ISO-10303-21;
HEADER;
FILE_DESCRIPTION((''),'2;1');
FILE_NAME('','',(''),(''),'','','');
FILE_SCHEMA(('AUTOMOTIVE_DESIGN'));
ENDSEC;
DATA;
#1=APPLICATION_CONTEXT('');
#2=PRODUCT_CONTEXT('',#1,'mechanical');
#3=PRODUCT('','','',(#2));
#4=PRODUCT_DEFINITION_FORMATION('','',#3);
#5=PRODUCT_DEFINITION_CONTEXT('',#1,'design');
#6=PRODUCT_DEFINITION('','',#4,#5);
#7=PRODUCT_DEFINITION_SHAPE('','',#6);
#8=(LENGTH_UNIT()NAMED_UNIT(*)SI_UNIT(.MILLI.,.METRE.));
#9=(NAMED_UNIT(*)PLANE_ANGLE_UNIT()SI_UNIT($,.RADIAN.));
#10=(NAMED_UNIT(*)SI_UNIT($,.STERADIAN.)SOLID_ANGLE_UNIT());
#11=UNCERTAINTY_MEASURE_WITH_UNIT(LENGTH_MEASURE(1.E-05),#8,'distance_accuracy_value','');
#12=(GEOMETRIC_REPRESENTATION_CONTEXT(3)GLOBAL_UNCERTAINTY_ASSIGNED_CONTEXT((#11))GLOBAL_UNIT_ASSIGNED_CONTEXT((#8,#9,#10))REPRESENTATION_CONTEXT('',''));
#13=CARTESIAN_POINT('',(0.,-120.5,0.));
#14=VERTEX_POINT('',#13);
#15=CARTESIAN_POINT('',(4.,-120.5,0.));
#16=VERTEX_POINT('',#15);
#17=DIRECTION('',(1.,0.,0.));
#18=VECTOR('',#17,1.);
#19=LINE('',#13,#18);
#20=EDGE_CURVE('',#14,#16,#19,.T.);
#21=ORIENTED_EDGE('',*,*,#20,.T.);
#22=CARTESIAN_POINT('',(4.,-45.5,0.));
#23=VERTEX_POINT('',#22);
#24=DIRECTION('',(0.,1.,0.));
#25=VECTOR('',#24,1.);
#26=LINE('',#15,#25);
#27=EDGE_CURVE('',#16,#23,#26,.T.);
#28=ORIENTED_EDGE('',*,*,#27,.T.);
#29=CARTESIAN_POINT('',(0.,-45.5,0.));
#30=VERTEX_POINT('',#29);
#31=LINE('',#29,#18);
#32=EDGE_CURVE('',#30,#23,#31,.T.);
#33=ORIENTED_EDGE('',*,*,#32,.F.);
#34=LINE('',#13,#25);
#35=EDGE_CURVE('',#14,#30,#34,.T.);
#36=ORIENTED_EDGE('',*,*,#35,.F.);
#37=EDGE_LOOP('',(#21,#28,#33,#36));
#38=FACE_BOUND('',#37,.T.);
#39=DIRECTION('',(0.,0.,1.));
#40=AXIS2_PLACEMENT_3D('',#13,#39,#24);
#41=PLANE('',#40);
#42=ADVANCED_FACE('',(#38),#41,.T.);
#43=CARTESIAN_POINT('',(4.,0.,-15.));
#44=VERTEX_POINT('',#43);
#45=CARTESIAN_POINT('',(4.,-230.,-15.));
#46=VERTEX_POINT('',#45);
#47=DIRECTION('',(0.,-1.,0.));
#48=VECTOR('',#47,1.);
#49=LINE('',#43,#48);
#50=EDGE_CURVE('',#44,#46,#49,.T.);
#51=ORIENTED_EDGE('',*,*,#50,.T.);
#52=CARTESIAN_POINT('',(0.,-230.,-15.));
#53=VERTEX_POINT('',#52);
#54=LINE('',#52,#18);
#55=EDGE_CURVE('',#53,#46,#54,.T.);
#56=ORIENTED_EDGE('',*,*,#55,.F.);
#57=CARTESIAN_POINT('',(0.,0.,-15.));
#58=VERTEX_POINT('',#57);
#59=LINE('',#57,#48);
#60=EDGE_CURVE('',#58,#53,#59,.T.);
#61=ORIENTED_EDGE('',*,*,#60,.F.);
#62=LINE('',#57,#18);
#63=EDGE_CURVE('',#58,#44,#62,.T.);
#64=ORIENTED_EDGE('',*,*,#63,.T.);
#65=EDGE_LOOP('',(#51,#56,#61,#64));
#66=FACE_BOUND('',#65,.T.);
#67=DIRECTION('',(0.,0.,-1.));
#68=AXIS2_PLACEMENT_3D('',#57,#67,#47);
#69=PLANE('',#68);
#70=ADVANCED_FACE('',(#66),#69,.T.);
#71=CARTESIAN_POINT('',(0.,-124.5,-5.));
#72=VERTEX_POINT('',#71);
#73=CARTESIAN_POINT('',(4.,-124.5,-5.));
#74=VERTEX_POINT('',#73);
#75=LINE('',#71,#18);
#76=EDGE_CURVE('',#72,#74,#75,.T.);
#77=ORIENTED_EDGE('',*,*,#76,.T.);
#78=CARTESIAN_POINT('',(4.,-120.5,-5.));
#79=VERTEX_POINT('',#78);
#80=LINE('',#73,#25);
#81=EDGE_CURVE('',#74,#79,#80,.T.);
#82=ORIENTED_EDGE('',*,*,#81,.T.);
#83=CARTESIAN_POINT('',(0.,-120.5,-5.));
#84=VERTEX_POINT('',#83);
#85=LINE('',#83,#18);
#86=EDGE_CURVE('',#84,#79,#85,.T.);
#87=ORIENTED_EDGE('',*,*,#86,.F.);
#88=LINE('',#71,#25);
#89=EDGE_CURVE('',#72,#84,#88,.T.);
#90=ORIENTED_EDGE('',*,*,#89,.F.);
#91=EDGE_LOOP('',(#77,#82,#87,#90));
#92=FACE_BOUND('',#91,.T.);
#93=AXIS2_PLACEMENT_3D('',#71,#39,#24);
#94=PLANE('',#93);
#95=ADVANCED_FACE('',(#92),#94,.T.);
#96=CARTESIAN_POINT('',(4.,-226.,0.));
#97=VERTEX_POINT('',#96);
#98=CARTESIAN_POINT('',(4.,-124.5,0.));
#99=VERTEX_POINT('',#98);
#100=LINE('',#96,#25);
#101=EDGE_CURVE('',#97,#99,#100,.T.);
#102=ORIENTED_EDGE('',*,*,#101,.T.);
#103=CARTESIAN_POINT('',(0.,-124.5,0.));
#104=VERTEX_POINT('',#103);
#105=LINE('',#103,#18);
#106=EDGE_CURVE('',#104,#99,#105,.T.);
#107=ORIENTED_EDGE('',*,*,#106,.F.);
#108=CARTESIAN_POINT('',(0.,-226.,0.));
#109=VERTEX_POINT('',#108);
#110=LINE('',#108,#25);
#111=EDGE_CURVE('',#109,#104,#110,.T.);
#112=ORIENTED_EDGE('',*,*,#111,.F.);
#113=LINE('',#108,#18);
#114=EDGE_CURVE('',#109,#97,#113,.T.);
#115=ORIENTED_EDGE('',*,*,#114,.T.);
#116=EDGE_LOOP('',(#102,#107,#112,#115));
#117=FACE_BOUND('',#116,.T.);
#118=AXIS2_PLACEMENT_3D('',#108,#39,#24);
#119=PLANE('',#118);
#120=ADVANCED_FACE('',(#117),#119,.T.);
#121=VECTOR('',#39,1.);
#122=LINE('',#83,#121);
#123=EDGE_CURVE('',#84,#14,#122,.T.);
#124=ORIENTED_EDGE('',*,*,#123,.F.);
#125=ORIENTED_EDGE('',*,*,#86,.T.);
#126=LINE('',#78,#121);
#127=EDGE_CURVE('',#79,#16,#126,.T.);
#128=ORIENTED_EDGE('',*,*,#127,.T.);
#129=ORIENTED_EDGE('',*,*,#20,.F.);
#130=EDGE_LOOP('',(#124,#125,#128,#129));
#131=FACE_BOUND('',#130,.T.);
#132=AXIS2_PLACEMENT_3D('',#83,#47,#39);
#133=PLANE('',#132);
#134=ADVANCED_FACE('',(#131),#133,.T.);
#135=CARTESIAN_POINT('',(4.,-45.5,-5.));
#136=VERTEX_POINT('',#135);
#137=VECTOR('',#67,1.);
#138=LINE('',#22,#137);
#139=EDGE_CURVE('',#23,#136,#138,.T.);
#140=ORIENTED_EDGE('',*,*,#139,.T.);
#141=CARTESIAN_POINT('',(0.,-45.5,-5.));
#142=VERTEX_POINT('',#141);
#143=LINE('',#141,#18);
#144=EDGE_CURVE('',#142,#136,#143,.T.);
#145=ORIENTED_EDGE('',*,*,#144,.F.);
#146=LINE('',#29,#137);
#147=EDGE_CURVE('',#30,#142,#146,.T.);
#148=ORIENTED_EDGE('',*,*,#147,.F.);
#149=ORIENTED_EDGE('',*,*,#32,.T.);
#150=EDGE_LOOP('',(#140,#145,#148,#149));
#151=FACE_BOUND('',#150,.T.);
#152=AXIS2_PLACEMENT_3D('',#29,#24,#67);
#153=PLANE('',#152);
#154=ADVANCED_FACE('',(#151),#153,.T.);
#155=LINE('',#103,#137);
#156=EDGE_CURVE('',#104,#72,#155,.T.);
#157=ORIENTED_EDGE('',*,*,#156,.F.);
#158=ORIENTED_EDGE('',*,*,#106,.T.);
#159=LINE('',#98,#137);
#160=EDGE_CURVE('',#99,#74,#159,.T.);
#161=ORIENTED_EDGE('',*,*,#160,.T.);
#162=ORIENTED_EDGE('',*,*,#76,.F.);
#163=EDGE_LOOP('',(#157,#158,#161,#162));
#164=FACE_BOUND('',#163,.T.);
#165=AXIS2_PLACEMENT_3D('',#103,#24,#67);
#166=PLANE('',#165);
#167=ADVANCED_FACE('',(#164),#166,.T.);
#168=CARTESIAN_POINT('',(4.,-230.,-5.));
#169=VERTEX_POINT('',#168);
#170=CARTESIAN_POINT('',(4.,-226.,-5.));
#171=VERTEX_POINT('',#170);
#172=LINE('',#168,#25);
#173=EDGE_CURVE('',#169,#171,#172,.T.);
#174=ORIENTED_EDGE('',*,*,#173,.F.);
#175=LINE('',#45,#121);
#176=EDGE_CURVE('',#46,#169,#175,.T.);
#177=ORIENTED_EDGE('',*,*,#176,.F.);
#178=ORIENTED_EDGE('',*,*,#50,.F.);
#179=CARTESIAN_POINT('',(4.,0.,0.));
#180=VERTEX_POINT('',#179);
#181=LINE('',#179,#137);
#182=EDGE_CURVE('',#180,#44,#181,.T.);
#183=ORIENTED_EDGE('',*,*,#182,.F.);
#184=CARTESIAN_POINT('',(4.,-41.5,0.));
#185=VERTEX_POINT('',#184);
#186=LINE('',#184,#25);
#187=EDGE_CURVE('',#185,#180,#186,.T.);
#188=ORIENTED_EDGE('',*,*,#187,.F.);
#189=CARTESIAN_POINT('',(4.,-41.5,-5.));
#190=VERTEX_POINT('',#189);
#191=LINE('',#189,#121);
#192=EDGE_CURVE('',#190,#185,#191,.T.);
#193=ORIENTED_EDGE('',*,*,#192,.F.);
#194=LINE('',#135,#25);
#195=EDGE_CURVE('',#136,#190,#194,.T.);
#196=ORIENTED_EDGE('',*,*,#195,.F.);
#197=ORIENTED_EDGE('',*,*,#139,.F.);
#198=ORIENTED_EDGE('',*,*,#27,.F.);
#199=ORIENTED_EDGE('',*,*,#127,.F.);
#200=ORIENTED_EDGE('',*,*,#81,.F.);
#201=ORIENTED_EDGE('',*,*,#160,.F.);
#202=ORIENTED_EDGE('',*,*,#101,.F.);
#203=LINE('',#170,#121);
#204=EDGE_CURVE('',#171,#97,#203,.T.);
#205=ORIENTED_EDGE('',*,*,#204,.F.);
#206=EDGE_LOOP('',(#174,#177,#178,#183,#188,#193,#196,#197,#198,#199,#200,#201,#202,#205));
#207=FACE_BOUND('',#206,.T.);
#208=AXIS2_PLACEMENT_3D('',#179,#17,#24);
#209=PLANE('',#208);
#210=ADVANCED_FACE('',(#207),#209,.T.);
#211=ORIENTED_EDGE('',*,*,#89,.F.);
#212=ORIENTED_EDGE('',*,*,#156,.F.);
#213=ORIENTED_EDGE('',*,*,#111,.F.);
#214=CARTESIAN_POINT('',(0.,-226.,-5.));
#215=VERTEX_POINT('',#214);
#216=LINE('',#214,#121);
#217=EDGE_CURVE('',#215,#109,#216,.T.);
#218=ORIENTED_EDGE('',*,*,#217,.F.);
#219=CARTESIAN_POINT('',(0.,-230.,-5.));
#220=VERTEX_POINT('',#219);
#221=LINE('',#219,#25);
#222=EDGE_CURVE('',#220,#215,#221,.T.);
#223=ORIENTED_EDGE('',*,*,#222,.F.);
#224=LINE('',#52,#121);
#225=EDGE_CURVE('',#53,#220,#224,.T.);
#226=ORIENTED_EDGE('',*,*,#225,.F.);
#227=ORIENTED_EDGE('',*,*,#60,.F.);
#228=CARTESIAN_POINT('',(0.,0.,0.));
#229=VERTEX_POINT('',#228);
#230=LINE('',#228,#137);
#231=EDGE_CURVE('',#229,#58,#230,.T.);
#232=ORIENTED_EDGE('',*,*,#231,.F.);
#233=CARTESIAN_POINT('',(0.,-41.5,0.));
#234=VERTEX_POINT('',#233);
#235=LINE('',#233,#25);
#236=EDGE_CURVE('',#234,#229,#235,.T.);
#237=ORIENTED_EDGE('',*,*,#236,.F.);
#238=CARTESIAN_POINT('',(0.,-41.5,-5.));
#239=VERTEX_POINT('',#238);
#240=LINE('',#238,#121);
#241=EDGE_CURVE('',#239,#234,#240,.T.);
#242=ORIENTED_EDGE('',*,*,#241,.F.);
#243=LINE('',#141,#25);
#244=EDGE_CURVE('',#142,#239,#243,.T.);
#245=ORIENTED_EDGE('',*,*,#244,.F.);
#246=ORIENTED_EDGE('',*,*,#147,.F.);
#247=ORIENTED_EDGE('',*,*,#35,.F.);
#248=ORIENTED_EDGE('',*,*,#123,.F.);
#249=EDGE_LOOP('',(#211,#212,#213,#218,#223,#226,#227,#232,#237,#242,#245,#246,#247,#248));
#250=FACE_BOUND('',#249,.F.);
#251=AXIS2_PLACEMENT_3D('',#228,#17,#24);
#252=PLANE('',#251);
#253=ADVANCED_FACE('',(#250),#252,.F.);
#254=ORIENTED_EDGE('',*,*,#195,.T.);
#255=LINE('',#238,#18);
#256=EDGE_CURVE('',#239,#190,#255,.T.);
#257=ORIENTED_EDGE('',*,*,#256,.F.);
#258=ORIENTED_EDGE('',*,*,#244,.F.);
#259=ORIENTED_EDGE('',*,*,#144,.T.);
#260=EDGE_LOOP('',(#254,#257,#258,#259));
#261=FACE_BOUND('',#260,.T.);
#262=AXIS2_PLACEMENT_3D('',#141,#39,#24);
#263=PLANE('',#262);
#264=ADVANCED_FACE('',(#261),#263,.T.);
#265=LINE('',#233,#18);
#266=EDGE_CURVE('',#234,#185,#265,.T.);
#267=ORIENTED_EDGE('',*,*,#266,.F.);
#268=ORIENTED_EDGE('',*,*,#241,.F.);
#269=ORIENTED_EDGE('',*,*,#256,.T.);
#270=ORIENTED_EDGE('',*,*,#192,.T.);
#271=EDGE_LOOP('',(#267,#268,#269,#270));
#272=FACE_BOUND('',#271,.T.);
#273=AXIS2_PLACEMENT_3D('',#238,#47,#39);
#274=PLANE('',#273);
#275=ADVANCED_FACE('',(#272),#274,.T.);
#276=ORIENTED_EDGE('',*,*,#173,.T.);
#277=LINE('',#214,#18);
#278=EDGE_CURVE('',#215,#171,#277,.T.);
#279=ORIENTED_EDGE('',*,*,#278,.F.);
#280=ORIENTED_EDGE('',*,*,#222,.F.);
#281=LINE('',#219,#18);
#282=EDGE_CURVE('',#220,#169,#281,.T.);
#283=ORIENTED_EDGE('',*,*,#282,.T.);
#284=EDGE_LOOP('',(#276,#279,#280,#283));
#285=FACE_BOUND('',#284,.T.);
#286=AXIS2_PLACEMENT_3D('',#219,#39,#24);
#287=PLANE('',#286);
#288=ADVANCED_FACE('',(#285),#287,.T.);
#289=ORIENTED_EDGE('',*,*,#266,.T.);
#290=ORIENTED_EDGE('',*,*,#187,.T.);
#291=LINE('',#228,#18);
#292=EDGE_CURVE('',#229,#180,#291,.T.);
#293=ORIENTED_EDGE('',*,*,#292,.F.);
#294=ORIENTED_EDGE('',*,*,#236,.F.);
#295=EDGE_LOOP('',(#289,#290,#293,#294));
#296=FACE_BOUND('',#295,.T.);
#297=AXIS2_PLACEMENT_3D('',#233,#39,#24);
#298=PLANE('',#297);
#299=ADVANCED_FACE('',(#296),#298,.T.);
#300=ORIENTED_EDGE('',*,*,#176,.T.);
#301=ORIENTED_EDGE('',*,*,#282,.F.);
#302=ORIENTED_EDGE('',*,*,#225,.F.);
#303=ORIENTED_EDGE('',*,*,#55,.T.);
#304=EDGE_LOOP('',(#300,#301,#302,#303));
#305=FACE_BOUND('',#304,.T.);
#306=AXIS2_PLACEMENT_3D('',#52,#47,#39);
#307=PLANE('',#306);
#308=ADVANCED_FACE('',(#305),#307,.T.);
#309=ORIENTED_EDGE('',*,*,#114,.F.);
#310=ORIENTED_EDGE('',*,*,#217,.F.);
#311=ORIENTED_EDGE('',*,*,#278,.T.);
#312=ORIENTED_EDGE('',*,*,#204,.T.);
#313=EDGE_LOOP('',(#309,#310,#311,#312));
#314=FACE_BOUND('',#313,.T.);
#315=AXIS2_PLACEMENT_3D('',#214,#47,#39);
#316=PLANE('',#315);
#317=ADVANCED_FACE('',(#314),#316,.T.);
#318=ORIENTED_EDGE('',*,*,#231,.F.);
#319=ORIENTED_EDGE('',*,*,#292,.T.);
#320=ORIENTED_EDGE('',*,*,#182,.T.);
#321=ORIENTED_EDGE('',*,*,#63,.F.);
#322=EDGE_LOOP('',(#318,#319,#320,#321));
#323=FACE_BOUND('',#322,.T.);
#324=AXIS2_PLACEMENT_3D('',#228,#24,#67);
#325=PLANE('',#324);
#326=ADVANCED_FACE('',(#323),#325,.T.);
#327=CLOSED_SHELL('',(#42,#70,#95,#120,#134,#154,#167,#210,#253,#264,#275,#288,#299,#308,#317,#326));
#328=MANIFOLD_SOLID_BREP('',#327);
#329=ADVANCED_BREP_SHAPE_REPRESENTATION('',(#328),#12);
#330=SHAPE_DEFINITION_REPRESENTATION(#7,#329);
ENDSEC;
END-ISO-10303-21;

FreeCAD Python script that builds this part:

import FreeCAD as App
import Part
import Sketcher

V = App.Vector
Q = App.Units.Quantity

doc = App.newDocument("Part")
body = doc.addObject("PartDesign::Body", "Body")

# Sketch on YZ plane
sketch1 = body.newObject("Sketcher::SketchObject", "Sketch")
sketch1.AttachmentSupport = (doc.getObject("YZ_Plane"), [""])
sketch1.MapMode = "FlatFace"
sketch1.addGeometry(Part.LineSegment(V(0, -15, 0), V(0, 0, 0)), False)
sketch1.addGeometry(Part.LineSegment(V(0, 0, 0), V(-41.5, 0, 0)), False)
sketch1.addGeometry(Part.LineSegment(V(-41.5, 0, 0), V(-41.5, -5, 0)), False)
sketch1.addGeometry(Part.LineSegment(V(-41.5, -5, 0), V(-45.5, -5, 0)), False)
sketch1.addGeometry(Part.LineSegment(V(-45.5, -5, 0), V(-45.5, 0, 0)), False)
sketch1.addGeometry(Part.LineSegment(V(-45.5, 0, 0), V(-120.5, 0, 0)), False)
sketch1.addGeometry(Part.LineSegment(V(-120.5, 0, 0), V(-120.5, -5, 0)), False)
sketch1.addGeometry(Part.LineSegment(V(-120.5, -5, 0), V(-124.5, -5, 0)), False)
sketch1.addGeometry(Part.LineSegment(V(-124.5, -5, 0), V(-124.5, 0, 0)), False)
sketch1.addGeometry(Part.LineSegment(V(-124.5, 0, 0), V(-226, 0, 0)), False)
sketch1.addGeometry(Part.LineSegment(V(-226, 0, 0), V(-226, -5, 0)), False)
sketch1.addGeometry(Part.LineSegment(V(-226, -5, 0), V(-230, -5, 0)), False)
sketch1.addGeometry(Part.LineSegment(V(-230, -5, 0), V(-230, -15, 0)), False)
sketch1.addGeometry(Part.LineSegment(V(-230, -15, 0), V(0, -15, 0)), False)
sketch1.addConstraint(Sketcher.Constraint("Coincident", 0, 2, 1, 1))
sketch1.addConstraint(Sketcher.Constraint("Coincident", 1, 2, 2, 1))
sketch1.addConstraint(Sketcher.Constraint("Coincident", 2, 2, 3, 1))
sketch1.addConstraint(Sketcher.Constraint("Coincident", 3, 2, 4, 1))
sketch1.addConstraint(Sketcher.Constraint("Coincident", 4, 2, 5, 1))
sketch1.addConstraint(Sketcher.Constraint("Coincident", 5, 2, 6, 1))
sketch1.addConstraint(Sketcher.Constraint("Coincident", 6, 2, 7, 1))
sketch1.addConstraint(Sketcher.Constraint("Coincident", 7, 2, 8, 1))
sketch1.addConstraint(Sketcher.Constraint("Coincident", 8, 2, 9, 1))
sketch1.addConstraint(Sketcher.Constraint("Coincident", 9, 2, 10, 1))
sketch1.addConstraint(Sketcher.Constraint("Coincident", 10, 2, 11, 1))
sketch1.addConstraint(Sketcher.Constraint("Coincident", 11, 2, 12, 1))
sketch1.addConstraint(Sketcher.Constraint("Coincident", 12, 2, 13, 1))
sketch1.addConstraint(Sketcher.Constraint("Coincident", 13, 2, 0, 1))
sketch1.addConstraint(Sketcher.Constraint("Vertical", 0))
sketch1.addConstraint(Sketcher.Constraint("Horizontal", 1))
sketch1.addConstraint(Sketcher.Constraint("Vertical", 2))
sketch1.addConstraint(Sketcher.Constraint("Horizontal", 3))
sketch1.addConstraint(Sketcher.Constraint("Vertical", 4))
sketch1.addConstraint(Sketcher.Constraint("Horizontal", 5))
sketch1.addConstraint(Sketcher.Constraint("Vertical", 6))
sketch1.addConstraint(Sketcher.Constraint("Horizontal", 7))
sketch1.addConstraint(Sketcher.Constraint("Vertical", 8))
sketch1.addConstraint(Sketcher.Constraint("Horizontal", 9))
sketch1.addConstraint(Sketcher.Constraint("Vertical", 10))
sketch1.addConstraint(Sketcher.Constraint("Horizontal", 11))
sketch1.addConstraint(Sketcher.Constraint("Vertical", 12))
sketch1.addConstraint(Sketcher.Constraint("Horizontal", 13))
sketch1.addConstraint(Sketcher.Constraint("Coincident", 0, 2, -1, 1))
sketch1.addConstraint(Sketcher.Constraint("PointOnObject", 4, 2, -1))
sketch1.addConstraint(Sketcher.Constraint("PointOnObject", 8, 2, -1))
sketch1.addConstraint(Sketcher.Constraint("Horizontal", 3, 2, 6, 2))
sketch1.addConstraint(Sketcher.Constraint("Horizontal", 7, 2, 10, 2))
sketch1.addConstraint(Sketcher.Constraint("Equal", 3, 7))
sketch1.addConstraint(Sketcher.Constraint("Equal", 7, 11))
sketch1.addConstraint(Sketcher.Constraint("DistanceX", 3, 2, 3, 1, Q("4 mm")))
sketch1.addConstraint(Sketcher.Constraint("DistanceX", 5, 2, 5, 1, Q("75 mm")))
sketch1.addConstraint(Sketcher.Constraint("DistanceY", 2, 2, 2, 1, Q("5 mm")))
sketch1.addConstraint(Sketcher.Constraint("DistanceY", 12, 2, 12, 1, Q("10 mm")))
sketch1.addConstraint(Sketcher.Constraint("DistanceX", 1, 2, 1, 1, Q("41.5 mm")))
sketch1.addConstraint(Sketcher.Constraint("DistanceX", 9, 2, 9, 1, Q("101.5 mm")))
pad1 = body.newObject("PartDesign::Pad", "Pad")
pad1.Profile = sketch1
pad1.Length = 4

doc.recompute()
